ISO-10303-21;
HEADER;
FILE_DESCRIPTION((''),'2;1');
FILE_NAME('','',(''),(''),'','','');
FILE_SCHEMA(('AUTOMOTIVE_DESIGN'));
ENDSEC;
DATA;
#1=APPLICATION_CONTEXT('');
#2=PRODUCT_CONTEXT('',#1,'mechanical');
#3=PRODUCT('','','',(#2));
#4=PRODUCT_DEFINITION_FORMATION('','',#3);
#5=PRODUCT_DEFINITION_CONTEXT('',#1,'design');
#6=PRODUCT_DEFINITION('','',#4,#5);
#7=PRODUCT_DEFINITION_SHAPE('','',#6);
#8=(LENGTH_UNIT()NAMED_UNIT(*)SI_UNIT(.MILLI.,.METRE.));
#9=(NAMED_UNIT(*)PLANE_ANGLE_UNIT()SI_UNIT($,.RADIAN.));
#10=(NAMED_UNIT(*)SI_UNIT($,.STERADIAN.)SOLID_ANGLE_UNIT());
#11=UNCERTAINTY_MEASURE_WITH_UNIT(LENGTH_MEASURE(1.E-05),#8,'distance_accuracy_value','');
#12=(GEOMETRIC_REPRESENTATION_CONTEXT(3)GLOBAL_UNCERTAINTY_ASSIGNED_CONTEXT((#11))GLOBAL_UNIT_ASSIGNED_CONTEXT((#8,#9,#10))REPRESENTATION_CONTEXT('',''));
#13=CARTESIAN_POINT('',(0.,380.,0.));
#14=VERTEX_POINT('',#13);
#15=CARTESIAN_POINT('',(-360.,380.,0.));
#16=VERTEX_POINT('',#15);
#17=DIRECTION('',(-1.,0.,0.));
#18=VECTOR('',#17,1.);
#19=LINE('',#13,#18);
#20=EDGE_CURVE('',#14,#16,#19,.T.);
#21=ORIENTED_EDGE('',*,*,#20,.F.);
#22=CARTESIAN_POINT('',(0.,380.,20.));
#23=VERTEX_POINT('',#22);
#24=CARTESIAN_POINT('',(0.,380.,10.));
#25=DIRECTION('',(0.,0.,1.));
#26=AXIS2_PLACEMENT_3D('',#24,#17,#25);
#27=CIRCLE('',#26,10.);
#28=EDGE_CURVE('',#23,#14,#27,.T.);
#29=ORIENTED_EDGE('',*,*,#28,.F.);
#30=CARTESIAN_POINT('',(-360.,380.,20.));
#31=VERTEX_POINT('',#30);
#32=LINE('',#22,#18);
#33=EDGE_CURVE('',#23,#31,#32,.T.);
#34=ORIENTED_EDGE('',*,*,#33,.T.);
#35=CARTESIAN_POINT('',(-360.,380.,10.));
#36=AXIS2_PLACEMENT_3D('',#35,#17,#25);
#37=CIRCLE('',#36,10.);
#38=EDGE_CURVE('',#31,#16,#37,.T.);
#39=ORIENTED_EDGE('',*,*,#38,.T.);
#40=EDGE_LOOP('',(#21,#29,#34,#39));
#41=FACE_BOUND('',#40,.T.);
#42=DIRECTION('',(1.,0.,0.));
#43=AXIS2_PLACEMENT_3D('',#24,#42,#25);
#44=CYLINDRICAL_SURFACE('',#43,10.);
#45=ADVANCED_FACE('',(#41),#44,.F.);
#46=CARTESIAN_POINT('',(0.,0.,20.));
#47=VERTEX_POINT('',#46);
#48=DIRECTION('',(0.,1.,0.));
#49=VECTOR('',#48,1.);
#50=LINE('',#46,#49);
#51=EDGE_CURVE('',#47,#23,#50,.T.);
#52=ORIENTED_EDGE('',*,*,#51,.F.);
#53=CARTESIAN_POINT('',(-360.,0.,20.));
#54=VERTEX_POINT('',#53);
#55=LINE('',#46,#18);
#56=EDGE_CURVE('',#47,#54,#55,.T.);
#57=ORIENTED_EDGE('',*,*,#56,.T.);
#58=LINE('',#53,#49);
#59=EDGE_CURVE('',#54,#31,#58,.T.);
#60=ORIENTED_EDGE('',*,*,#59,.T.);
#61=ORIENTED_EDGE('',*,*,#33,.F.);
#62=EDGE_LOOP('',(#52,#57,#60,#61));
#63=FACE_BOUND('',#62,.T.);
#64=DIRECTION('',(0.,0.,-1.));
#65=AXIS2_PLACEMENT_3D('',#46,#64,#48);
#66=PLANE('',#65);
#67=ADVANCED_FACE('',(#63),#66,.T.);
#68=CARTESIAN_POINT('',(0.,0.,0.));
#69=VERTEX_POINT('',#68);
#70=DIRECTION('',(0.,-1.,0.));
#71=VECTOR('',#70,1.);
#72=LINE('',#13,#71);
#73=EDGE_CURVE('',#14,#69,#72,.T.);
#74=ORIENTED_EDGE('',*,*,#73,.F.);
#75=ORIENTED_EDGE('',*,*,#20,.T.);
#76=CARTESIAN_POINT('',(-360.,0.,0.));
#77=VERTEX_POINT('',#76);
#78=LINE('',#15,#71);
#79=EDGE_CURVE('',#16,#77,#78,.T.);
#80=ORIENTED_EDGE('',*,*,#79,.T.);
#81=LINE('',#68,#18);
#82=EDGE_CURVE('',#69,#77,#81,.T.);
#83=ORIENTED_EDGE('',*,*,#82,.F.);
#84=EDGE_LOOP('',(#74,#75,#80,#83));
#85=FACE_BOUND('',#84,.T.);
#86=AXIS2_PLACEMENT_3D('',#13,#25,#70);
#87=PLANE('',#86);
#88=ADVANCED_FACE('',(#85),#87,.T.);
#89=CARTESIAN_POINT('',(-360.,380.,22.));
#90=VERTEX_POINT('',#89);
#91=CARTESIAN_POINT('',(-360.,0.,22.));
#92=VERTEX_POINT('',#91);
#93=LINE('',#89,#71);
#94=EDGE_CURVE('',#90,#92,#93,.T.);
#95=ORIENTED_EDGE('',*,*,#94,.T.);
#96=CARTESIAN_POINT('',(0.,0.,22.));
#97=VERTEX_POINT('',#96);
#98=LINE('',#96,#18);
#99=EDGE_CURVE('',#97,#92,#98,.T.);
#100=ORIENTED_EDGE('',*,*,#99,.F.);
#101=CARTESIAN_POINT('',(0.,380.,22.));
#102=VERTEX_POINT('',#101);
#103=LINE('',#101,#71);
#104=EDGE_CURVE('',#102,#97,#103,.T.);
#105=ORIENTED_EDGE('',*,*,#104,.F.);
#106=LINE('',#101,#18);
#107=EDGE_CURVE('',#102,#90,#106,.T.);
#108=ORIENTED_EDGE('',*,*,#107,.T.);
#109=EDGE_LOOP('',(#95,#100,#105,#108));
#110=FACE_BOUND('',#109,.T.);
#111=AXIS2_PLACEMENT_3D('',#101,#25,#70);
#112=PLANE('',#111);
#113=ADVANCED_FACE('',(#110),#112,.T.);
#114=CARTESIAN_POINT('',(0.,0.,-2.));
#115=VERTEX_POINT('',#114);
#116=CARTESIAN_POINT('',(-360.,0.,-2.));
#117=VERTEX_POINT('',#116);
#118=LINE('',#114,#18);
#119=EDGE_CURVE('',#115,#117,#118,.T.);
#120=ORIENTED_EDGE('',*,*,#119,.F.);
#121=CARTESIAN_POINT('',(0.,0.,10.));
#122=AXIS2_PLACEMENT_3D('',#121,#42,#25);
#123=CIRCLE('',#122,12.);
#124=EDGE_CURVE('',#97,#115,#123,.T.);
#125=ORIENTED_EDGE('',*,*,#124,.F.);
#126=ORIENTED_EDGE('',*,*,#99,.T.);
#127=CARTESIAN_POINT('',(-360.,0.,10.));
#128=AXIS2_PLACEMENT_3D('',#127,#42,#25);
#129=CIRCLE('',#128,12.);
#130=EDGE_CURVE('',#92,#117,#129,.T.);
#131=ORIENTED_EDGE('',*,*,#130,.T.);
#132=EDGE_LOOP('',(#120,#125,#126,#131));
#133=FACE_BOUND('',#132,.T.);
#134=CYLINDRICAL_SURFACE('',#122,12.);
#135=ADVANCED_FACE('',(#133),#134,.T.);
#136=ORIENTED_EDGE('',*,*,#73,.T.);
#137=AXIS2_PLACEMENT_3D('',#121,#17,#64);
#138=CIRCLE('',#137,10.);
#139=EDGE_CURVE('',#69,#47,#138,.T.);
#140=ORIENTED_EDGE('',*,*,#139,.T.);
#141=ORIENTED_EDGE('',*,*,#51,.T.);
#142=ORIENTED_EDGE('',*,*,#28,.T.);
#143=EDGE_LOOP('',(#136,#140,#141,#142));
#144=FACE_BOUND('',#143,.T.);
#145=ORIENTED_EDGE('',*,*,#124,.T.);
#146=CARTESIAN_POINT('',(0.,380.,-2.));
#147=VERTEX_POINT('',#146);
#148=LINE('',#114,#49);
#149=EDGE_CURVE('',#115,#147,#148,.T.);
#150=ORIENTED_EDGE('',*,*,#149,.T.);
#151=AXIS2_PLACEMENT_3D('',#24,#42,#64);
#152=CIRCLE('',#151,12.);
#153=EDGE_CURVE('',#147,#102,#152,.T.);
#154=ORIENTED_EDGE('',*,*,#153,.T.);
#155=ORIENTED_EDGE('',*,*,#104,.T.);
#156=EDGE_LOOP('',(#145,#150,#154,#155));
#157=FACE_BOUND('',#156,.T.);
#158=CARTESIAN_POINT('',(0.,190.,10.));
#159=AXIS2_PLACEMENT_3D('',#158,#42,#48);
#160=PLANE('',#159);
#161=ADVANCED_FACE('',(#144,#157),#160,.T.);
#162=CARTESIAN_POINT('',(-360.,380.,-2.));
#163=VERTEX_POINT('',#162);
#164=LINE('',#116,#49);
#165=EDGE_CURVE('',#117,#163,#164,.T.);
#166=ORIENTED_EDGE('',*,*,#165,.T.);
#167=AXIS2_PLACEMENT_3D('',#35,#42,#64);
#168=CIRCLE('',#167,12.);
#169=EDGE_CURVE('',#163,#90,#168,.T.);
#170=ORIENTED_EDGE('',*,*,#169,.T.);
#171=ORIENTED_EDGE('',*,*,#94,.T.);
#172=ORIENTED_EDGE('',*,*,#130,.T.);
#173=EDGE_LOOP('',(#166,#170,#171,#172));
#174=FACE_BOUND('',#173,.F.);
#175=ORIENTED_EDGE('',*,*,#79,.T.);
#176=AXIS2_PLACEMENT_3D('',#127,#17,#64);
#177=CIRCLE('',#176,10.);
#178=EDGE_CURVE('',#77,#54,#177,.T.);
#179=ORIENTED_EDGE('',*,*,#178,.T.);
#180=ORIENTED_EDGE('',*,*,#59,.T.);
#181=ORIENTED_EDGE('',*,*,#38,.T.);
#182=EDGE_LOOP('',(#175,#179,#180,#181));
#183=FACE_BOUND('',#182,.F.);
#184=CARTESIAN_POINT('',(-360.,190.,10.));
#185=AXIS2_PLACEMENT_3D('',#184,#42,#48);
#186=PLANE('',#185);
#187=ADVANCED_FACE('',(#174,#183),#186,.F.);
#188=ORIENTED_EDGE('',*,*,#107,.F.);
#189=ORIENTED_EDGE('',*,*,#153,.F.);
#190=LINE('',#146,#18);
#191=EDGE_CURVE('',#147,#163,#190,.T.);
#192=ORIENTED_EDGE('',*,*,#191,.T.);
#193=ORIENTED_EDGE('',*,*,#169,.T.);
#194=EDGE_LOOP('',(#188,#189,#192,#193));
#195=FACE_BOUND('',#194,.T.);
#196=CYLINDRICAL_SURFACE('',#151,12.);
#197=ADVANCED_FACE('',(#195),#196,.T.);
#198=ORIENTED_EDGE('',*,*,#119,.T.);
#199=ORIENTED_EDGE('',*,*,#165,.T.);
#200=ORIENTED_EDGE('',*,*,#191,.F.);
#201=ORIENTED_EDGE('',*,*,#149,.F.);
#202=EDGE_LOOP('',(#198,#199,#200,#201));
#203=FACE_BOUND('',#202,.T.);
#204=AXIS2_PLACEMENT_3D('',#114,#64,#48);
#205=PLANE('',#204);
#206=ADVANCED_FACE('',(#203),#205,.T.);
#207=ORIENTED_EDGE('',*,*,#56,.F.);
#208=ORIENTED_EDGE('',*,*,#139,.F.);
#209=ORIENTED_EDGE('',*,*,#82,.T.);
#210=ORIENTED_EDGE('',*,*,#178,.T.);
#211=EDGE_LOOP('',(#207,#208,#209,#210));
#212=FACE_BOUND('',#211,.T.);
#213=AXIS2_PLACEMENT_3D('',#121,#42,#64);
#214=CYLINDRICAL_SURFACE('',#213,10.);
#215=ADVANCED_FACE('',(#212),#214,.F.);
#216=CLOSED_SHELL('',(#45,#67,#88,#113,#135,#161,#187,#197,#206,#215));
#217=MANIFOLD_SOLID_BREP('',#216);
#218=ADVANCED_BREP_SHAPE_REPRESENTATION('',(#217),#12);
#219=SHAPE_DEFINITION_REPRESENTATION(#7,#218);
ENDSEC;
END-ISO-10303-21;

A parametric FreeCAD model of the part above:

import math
import FreeCAD as App
import Part
import Sketcher

V = App.Vector

doc = App.newDocument("Part")
params = doc.addObject("Spreadsheet::Sheet", "Params")
for row, (alias, value) in enumerate([
    ("sketch1_radius", "12 mm"),
    ("sketch1_radius2", "10 mm"),
    ("sketch1_width", "380 mm"),
    ("pad1_length", "360 mm"),
], start=1):
    params.set(f"A{row}", alias)
    params.set(f"B{row}", "=" + value)
    params.setAlias(f"B{row}", alias)

body = doc.addObject("PartDesign::Body", "Body")

# Sketch on YZ plane
sketch1 = body.newObject("Sketcher::SketchObject", "Sketch")
sketch1.AttachmentSupport = (doc.getObject("YZ_Plane"), [""])
sketch1.MapMode = "FlatFace"
sketch1.addGeometry([
    Part.LineSegment(V(380, 22, 0), V(0, 22, 0)),  # 0
    Part.ArcOfCircle(Part.Circle(V(0, 10, 0), V(0, 0, 1), 12), math.radians(90), math.radians(270)),  # 1
    Part.LineSegment(V(0, -2, 0), V(380, -2, 0)),  # 2
    Part.ArcOfCircle(Part.Circle(V(380, 10, 0), V(0, 0, 1), 12), math.radians(-90), math.radians(90)),  # 3
    Part.ArcOfCircle(Part.Circle(V(380, 10, 0), V(0, 0, 1), 10), math.radians(-90), math.radians(90)),  # 4
    Part.LineSegment(V(380, 0, 0), V(0, 0, 0)),  # 5
    Part.ArcOfCircle(Part.Circle(V(0, 10, 0), V(0, 0, 1), 10), math.radians(90), math.radians(270)),  # 6
    Part.LineSegment(V(0, 20, 0), V(380, 20, 0)),  # 7
], False)
sketch1.addConstraint([
    Sketcher.Constraint("Tangent", 0, 2, 1, 1),
    Sketcher.Constraint("Tangent", 1, 2, 2, 1),
    Sketcher.Constraint("Tangent", 2, 2, 3, 1),
    Sketcher.Constraint("Tangent", 3, 2, 0, 1),
    Sketcher.Constraint("Tangent", 4, 1, 5, 1),
    Sketcher.Constraint("Tangent", 5, 2, 6, 2),
    Sketcher.Constraint("Tangent", 6, 1, 7, 1),
    Sketcher.Constraint("Tangent", 7, 2, 4, 2),
    Sketcher.Constraint("Horizontal", 0),
    Sketcher.Constraint("Horizontal", 2),
    Sketcher.Constraint("Horizontal", 5),
    Sketcher.Constraint("Horizontal", 7),
    Sketcher.Constraint("Coincident", 5, 2, -1, 1),
    Sketcher.Constraint("Coincident", 4, 3, 3, 3),
    Sketcher.Constraint("PointOnObject", 1, 3, -2),
    Sketcher.Constraint("Radius", 1, 12.0),
    Sketcher.Constraint("Radius", 4, 10.0),
    Sketcher.Constraint("DistanceX", 0, 2, 0, 1, 380.0),
])
sketch1.setExpression("Constraints[15]", "Params.sketch1_radius")
sketch1.setExpression("Constraints[16]", "Params.sketch1_radius2")
sketch1.setExpression("Constraints[17]", "Params.sketch1_width")
pad1 = body.newObject("PartDesign::Pad", "Pad")
pad1.Profile = sketch1
pad1.setExpression("Length", "Params.pad1_length")
pad1.Reversed = True

doc.recompute()
